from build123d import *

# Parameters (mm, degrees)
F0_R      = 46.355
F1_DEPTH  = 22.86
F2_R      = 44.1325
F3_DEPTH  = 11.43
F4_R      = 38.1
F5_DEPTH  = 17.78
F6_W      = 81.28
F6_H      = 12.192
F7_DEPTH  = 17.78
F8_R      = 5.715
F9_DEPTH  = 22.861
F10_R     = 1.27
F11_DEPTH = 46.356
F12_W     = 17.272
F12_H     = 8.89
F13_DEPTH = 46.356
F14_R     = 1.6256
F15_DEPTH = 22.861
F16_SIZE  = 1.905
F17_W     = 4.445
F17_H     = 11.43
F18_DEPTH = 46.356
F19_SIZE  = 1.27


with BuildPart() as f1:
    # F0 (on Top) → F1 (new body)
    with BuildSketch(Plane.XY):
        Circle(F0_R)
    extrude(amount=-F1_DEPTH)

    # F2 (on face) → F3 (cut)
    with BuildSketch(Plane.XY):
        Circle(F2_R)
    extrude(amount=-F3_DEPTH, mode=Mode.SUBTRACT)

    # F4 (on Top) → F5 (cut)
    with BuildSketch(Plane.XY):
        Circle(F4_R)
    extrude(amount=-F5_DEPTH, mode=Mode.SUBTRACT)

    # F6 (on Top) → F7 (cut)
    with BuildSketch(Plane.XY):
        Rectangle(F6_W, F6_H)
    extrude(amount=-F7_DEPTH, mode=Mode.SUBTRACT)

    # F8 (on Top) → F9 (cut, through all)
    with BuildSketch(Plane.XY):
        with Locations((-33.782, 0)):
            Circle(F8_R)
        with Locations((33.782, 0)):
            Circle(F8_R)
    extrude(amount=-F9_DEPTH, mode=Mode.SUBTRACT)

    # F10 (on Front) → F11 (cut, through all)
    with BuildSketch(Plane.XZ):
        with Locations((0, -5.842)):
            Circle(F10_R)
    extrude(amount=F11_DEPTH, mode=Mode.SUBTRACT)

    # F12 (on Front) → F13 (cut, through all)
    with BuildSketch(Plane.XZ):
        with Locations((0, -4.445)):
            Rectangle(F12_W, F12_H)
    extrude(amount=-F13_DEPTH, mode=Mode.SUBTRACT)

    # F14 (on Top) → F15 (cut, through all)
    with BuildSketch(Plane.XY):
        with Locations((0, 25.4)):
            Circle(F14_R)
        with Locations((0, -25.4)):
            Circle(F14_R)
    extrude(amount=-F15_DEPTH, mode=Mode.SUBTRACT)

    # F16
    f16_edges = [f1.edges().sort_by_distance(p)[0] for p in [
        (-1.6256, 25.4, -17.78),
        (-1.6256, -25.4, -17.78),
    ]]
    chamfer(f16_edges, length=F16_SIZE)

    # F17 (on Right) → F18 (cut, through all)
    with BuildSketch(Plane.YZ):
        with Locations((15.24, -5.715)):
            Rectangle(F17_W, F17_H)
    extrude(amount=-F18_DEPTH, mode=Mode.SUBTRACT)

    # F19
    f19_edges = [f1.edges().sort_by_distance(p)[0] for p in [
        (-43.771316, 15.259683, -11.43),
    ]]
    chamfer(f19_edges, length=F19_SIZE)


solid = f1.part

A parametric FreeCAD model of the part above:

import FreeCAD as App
import Part
import Sketcher

V = App.Vector
Q = App.Units.Quantity


def edges_at(feature, points):
    """Names of the edges that pass closest to the given points."""
    edges = feature.Shape.Edges
    near = lambda p: min(range(len(edges)), key=lambda i: edges[i].distToShape(Part.Vertex(*p))[0])
    return sorted({f"Edge{near(p) + 1}" for p in points})


def add_polygon(sketch, points):
    """Adds a closed chain of lines whose ends are joined by coincident constraints."""
    first, n = sketch.GeometryCount, len(points)
    for a, b in zip(points, points[1:] + points[:1]):
        sketch.addGeometry(Part.LineSegment(App.Vector(*a, 0), App.Vector(*b, 0)), False)
    for i in range(n):
        sketch.addConstraint(Sketcher.Constraint("Coincident", first + i, 2, first + (i + 1) % n, 1))

doc = App.newDocument("Part")
body = doc.addObject("PartDesign::Body", "Body")

# Sketch on XY plane
sketch1 = body.newObject("Sketcher::SketchObject", "Sketch")
sketch1.AttachmentSupport = (doc.getObject("XY_Plane"), [""])
sketch1.MapMode = "FlatFace"
sketch1.addGeometry(Part.Circle(V(0, 0, 0), V(0, 0, 1), 46), False)
sketch1.addConstraint([
    Sketcher.Constraint("Coincident", 0, 3, -1, 1),
    Sketcher.Constraint("Diameter", 0, Q("3.65 in")),
])
pad1 = body.newObject("PartDesign::Pad", "Pad")
pad1.Profile = sketch1
pad1.Length = Q("0.9 in")
pad1.Reversed = True

# Sketch on XY plane
sketch2 = body.newObject("Sketcher::SketchObject", "Sketch001")
sketch2.AttachmentSupport = (doc.getObject("XY_Plane"), [""])
sketch2.MapMode = "FlatFace"
sketch2.addGeometry(Part.Circle(V(0, 0, 0), V(0, 0, 1), 44), False)
sketch2.addConstraint([
    Sketcher.Constraint("Coincident", 0, 3, -1, 1),
    Sketcher.Constraint("Diameter", 0, Q("3.475 in")),
])
pocket1 = body.newObject("PartDesign::Pocket", "Pocket")
pocket1.Profile = sketch2
pocket1.Length = Q("0.45 in")

# Sketch on XY plane
sketch3 = body.newObject("Sketcher::SketchObject", "Sketch002")
sketch3.AttachmentSupport = (doc.getObject("XY_Plane"), [""])
sketch3.MapMode = "FlatFace"
sketch3.addGeometry(Part.Circle(V(0, 0, 0), V(0, 0, 1), 38), False)
sketch3.addConstraint([
    Sketcher.Constraint("Coincident", 0, 3, -1, 1),
    Sketcher.Constraint("Diameter", 0, Q("3 in")),
])
pocket2 = body.newObject("PartDesign::Pocket", "Pocket001")
pocket2.Profile = sketch3
pocket2.Length = Q("0.7 in")

# Sketch on XY plane
sketch4 = body.newObject("Sketcher::SketchObject", "Sketch003")
sketch4.AttachmentSupport = (doc.getObject("XY_Plane"), [""])
sketch4.MapMode = "FlatFace"
add_polygon(sketch4, [(-41, 6), (-41, -6), (41, -6), (41, 6)])  # lines 0-3
sketch4.addConstraint([
    Sketcher.Constraint("Vertical", 0),
    Sketcher.Constraint("Horizontal", 1),
    Sketcher.Constraint("Vertical", 2),
    Sketcher.Constraint("Horizontal", 3),
    Sketcher.Constraint("Symmetric", 0, 2, 2, 2, -1, 1),
    Sketcher.Constraint("DistanceX", 1, 1, 1, 2, Q("3.2 in")),
    Sketcher.Constraint("DistanceY", 0, 2, 0, 1, Q("0.48 in")),
])
pocket3 = body.newObject("PartDesign::Pocket", "Pocket002")
pocket3.Profile = sketch4
pocket3.Length = Q("0.7 in")

# Sketch on XY plane
sketch5 = body.newObject("Sketcher::SketchObject", "Sketch004")
sketch5.AttachmentSupport = (doc.getObject("XY_Plane"), [""])
sketch5.MapMode = "FlatFace"
sketch5.addGeometry([
    Part.Circle(V(-34, 0, 0), V(0, 0, 1), 6),
    Part.Circle(V(34, 0, 0), V(0, 0, 1), 6),
], False)
sketch5.addConstraint([
    Sketcher.Constraint("Equal", 0, 1),
    Sketcher.Constraint("Symmetric", 0, 3, 1, 3, -1, 1),
    Sketcher.Constraint("PointOnObject", 0, 3, -1),
    Sketcher.Constraint("Diameter", 0, Q("0.45 in")),
    Sketcher.Constraint("DistanceX", 0, 3, -1, 1, Q("1.33 in")),
])
pocket4 = body.newObject("PartDesign::Pocket", "Pocket003")
pocket4.Profile = sketch5
pocket4.Type = "ThroughAll"

# Sketch on XZ plane
sketch6 = body.newObject("Sketcher::SketchObject", "Sketch005")
sketch6.AttachmentSupport = (doc.getObject("XZ_Plane"), [""])
sketch6.MapMode = "FlatFace"
sketch6.addGeometry(Part.Circle(V(0, -5.8, 0), V(0, 0, 1), 1.3), False)
sketch6.addConstraint([
    Sketcher.Constraint("PointOnObject", 0, 3, -2),
    Sketcher.Constraint("Diameter", 0, Q("0.1 in")),
    Sketcher.Constraint("DistanceY", 0, 3, -1, 1, Q("0.23 in")),
])
pocket5 = body.newObject("PartDesign::Pocket", "Pocket004")
pocket5.Profile = sketch6
pocket5.Type = "ThroughAll"
pocket5.Reversed = True

# Sketch on XZ plane
sketch7 = body.newObject("Sketcher::SketchObject", "Sketch006")
sketch7.AttachmentSupport = (doc.getObject("XZ_Plane"), [""])
sketch7.MapMode = "FlatFace"
add_polygon(sketch7, [(-9, 0), (-9, -9), (9, -9), (9, 0)])  # lines 0-3
sketch7.addConstraint([
    Sketcher.Constraint("Vertical", 0),
    Sketcher.Constraint("Horizontal", 1),
    Sketcher.Constraint("Vertical", 2),
    Sketcher.Constraint("Horizontal", 3),
    Sketcher.Constraint("Symmetric", 2, 2, 3, 2, -1, 1),
    Sketcher.Constraint("DistanceX", 1, 1, 1, 2, Q("0.68 in")),
    Sketcher.Constraint("DistanceY", 0, 2, 0, 1, Q("0.35 in")),
])
pocket6 = body.newObject("PartDesign::Pocket", "Pocket005")
pocket6.Profile = sketch7
pocket6.Type = "ThroughAll"

# Sketch on XY plane
sketch8 = body.newObject("Sketcher::SketchObject", "Sketch007")
sketch8.AttachmentSupport = (doc.getObject("XY_Plane"), [""])
sketch8.MapMode = "FlatFace"
sketch8.addGeometry([
    Part.Circle(V(0, 25.4, 0), V(0, 0, 1), 1.6),
    Part.Circle(V(0, -25.4, 0), V(0, 0, 1), 1.6),
], False)
sketch8.addConstraint([
    Sketcher.Constraint("Equal", 0, 1),
    Sketcher.Constraint("Symmetric", 0, 3, 1, 3, -1, 1),
    Sketcher.Constraint("PointOnObject", 0, 3, -2),
    Sketcher.Constraint("Diameter", 0, Q("0.128 in")),
    Sketcher.Constraint("DistanceY", -1, 1, 0, 3, Q("1 in")),
])
pocket7 = body.newObject("PartDesign::Pocket", "Pocket006")
pocket7.Profile = sketch8
pocket7.Type = "ThroughAll"
doc.recompute()

chamfer = body.newObject("PartDesign::Chamfer", "Chamfer")
chamfer.Base = (pocket7, edges_at(pocket7, [(-1.626, 25.4, -17.78), (-1.626, -25.4, -17.78)]))
chamfer.Size = Q("0.075 in")

# Sketch on YZ plane
sketch9 = body.newObject("Sketcher::SketchObject", "Sketch008")
sketch9.AttachmentSupport = (doc.getObject("YZ_Plane"), [""])
sketch9.MapMode = "FlatFace"
add_polygon(sketch9, [(13, 0), (13, -11.4), (17.5, -11.4), (17.5, 0)])  # lines 0-3
sketch9.addConstraint([
    Sketcher.Constraint("Vertical", 0),
    Sketcher.Constraint("Horizontal", 1),
    Sketcher.Constraint("Vertical", 2),
    Sketcher.Constraint("Horizontal", 3),
    Sketcher.Constraint("PointOnObject", 2, 2, -1),
    Sketcher.Constraint("DistanceY", 0, 2, 0, 1, Q("0.45 in")),
    Sketcher.Constraint("DistanceX", 1, 1, 1, 2, Q("0.175 in")),
    Sketcher.Constraint("DistanceX", -1, 1, 1, 2, Q("0.6875 in")),
])
pocket8 = body.newObject("PartDesign::Pocket", "Pocket007")
pocket8.Profile = sketch9
pocket8.Type = "ThroughAll"
doc.recompute()

chamfer2 = body.newObject("PartDesign::Chamfer", "Chamfer001")
chamfer2.Base = (pocket8, edges_at(pocket8, [(-43.771, 15.26, -11.43)]))
chamfer2.Size = Q("0.05 in")

doc.recompute()
